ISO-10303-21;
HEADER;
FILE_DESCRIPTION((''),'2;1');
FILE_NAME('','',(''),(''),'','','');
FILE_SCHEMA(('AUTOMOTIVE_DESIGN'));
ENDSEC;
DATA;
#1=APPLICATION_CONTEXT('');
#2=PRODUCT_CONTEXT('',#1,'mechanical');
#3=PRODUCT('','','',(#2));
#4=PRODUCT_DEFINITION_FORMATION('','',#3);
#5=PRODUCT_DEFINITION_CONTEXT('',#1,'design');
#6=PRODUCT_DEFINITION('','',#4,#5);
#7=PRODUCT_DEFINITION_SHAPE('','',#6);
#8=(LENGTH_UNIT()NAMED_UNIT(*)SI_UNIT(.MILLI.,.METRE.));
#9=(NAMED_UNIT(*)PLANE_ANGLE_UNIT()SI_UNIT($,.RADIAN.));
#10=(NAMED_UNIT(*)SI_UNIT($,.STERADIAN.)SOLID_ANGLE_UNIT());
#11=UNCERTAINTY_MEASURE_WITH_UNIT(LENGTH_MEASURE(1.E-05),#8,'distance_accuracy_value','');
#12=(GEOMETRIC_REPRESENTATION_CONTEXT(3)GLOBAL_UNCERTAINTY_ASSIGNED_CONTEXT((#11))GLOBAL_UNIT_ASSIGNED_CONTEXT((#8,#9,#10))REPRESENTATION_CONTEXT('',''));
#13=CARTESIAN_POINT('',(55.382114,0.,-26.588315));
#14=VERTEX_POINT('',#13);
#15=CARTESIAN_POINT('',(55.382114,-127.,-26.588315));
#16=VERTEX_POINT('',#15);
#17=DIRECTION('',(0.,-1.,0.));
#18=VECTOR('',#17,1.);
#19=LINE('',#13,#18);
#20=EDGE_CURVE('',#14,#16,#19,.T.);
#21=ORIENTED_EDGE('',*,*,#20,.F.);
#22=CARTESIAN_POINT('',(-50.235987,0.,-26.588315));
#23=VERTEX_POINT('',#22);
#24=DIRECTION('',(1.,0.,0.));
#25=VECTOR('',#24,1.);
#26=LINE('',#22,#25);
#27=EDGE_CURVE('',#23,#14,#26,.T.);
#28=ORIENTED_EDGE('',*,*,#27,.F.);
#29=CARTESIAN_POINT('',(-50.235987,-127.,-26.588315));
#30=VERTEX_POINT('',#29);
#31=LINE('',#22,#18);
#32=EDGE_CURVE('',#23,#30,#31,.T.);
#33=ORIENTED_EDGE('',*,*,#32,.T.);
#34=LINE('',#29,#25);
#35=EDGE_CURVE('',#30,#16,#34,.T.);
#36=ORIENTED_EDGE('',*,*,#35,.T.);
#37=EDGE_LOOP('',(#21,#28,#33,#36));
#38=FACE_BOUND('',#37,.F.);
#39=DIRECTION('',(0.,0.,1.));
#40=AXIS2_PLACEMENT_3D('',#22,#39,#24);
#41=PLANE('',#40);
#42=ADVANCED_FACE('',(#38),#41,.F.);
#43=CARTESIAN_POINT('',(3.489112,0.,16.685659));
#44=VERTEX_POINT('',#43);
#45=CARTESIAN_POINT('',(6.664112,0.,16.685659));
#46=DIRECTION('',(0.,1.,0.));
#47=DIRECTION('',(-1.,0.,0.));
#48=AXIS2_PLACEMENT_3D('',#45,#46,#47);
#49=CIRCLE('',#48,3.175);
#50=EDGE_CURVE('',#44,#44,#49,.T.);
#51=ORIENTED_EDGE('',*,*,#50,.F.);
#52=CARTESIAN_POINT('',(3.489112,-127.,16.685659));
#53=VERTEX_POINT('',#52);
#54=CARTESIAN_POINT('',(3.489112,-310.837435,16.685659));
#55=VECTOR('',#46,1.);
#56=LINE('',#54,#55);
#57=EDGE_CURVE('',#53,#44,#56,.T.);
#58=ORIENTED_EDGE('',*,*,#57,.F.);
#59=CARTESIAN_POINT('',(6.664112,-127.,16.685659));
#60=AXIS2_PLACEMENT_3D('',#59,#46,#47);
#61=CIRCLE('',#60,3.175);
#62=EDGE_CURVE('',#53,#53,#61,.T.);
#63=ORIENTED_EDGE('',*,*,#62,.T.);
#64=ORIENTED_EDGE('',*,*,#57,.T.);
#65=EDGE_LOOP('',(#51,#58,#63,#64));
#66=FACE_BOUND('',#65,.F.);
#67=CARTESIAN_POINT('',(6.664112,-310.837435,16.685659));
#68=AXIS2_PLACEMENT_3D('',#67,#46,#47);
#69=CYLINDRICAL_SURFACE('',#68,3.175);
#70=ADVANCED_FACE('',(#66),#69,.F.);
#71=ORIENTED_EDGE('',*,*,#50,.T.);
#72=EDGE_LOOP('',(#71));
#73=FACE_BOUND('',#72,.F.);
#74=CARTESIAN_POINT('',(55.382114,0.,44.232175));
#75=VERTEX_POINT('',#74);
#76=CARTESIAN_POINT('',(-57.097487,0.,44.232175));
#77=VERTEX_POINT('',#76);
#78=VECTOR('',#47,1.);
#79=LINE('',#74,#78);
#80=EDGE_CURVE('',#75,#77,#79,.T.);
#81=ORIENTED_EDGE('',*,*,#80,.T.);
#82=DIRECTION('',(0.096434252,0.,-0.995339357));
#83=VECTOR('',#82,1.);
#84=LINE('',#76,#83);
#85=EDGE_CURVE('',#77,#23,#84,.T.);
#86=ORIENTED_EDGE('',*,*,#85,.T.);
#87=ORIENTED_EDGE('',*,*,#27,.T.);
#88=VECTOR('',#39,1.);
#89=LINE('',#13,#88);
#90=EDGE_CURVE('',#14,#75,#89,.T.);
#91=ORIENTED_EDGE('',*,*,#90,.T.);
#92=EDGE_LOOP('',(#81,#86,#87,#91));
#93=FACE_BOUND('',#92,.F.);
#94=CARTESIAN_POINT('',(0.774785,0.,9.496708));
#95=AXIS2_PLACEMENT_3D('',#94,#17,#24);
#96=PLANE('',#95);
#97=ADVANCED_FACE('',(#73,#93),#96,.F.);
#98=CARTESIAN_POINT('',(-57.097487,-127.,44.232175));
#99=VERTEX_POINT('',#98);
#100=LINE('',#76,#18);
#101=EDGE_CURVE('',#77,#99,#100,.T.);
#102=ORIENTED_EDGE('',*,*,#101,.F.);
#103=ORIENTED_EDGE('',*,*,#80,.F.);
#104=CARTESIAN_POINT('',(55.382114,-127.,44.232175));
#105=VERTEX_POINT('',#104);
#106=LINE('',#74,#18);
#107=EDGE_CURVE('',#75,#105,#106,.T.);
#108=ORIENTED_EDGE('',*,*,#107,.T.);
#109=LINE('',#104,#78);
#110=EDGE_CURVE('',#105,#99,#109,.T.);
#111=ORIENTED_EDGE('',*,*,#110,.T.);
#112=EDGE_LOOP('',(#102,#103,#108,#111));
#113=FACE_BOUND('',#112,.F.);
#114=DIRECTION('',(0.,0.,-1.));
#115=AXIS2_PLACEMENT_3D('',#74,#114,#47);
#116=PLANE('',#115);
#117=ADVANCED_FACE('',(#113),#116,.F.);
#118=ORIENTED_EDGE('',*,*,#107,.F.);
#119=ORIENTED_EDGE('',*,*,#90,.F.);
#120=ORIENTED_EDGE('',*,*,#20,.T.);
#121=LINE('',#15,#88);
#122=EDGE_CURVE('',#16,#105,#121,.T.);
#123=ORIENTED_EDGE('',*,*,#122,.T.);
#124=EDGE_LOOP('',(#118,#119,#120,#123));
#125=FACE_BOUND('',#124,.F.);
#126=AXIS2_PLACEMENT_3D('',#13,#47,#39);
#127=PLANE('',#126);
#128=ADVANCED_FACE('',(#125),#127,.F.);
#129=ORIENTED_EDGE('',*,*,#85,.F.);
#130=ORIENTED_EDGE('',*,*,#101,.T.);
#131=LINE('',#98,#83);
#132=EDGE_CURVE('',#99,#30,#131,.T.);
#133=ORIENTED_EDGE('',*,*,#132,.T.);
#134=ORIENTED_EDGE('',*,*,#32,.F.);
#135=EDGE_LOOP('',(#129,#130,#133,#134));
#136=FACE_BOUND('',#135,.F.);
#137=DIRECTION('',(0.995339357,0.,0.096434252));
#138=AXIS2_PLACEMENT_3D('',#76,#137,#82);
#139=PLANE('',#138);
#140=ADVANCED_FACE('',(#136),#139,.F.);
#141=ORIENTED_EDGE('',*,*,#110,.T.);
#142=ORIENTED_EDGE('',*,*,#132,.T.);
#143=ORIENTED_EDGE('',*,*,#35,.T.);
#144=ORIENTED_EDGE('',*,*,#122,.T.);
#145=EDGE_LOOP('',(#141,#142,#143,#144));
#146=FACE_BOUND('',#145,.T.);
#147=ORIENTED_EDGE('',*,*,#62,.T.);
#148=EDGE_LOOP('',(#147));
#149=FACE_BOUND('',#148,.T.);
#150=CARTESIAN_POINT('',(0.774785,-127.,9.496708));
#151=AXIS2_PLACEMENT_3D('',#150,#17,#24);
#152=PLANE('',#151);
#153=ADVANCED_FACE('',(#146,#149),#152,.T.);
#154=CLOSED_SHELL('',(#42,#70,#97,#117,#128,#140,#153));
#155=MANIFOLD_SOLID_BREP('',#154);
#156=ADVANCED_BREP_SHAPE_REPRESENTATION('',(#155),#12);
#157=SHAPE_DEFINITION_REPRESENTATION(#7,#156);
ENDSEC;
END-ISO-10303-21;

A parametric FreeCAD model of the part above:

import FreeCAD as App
import Part
import Sketcher
Q = App.Units.Quantity

doc = App.newDocument("Part")
params = doc.addObject("Spreadsheet::Sheet", "Params")
for row, (alias, value) in enumerate([
    ("pad1_length", "5 in"),
    ("sketch2_diameter", "0.25 in"),
    ("hole_diameter", "0.25 in"),
], start=1):
    params.set(f"A{row}", alias)
    params.set(f"B{row}", "=" + value)
    params.setAlias(f"B{row}", alias)

body = doc.addObject("PartDesign::Body", "Body")

sketch1 = body.newObject("Sketcher::SketchObject", "Sketch")
sketch1.AttachmentSupport = (doc.getObject("XZ_Plane"), [""])
sketch1.MapMode = "FlatFace"
sketch1.addGeometry([
    Part.LineSegment(App.Vector(55, 44, 0), App.Vector(-57, 44, 0)),
    Part.LineSegment(App.Vector(-57, 44, 0), App.Vector(-50, -27, 0)),
    Part.LineSegment(App.Vector(-50, -27, 0), App.Vector(55, -27, 0)),
    Part.LineSegment(App.Vector(55, -27, 0), App.Vector(55, 44, 0)),
], False)
sketch1.addConstraint([
    Sketcher.Constraint("Coincident", 0, 2, 1, 1),
    Sketcher.Constraint("Coincident", 1, 2, 2, 1),
    Sketcher.Constraint("Coincident", 2, 2, 3, 1),
    Sketcher.Constraint("Coincident", 3, 2, 0, 1),
    Sketcher.Constraint("Horizontal", 0),
    Sketcher.Constraint("Horizontal", 2),
    Sketcher.Constraint("Vertical", 3),
    Sketcher.Constraint("DistanceX", 0, 2, 0, 1, Q("112.479601 mm")),
    Sketcher.Constraint("DistanceX", 2, 1, 2, 2, Q("105.618101 mm")),
    Sketcher.Constraint("DistanceY", 3, 1, 3, 2, Q("70.82049 mm")),
    Sketcher.Constraint("DistanceX", 0, 2, -1, 1, Q("57.097487 mm")),
    Sketcher.Constraint("DistanceY", -1, 1, 0, 2, Q("44.232175 mm")),
])
pad1 = body.newObject("PartDesign::Pad", "Pad")
pad1.Profile = sketch1
pad1.setExpression("Length", "Params.pad1_length")

sketch2 = body.newObject("Sketcher::SketchObject", "Sketch001")
sketch2.AttachmentSupport = (doc.getObject("XZ_Plane"), [""])
sketch2.MapMode = "FlatFace"
sketch2.AttachmentOffset = App.Placement(App.Vector(0, 0, 5 * 25.4), App.Rotation())
sketch2.addGeometry(Part.Circle(App.Vector(6.7, 16.7, 0), App.Vector(0, 0, 1), 3.2), False)
sketch2.addConstraint([
    Sketcher.Constraint("Diameter", 0, Q("0.25 in")),
    Sketcher.Constraint("DistanceY", -1, 1, 0, 3, Q("16.685659 mm")),
    Sketcher.Constraint("DistanceX", -1, 1, 0, 3, Q("6.664112 mm")),
])
sketch2.setExpression("Constraints[0]", "Params.sketch2_diameter")
doc.recompute()
hole = body.newObject("PartDesign::Hole", "Hole")
hole.Profile = sketch2
hole.ThreadType = "None"
hole.setExpression("Diameter", "Params.hole_diameter")
hole.DepthType = "ThroughAll"

doc.recompute()
